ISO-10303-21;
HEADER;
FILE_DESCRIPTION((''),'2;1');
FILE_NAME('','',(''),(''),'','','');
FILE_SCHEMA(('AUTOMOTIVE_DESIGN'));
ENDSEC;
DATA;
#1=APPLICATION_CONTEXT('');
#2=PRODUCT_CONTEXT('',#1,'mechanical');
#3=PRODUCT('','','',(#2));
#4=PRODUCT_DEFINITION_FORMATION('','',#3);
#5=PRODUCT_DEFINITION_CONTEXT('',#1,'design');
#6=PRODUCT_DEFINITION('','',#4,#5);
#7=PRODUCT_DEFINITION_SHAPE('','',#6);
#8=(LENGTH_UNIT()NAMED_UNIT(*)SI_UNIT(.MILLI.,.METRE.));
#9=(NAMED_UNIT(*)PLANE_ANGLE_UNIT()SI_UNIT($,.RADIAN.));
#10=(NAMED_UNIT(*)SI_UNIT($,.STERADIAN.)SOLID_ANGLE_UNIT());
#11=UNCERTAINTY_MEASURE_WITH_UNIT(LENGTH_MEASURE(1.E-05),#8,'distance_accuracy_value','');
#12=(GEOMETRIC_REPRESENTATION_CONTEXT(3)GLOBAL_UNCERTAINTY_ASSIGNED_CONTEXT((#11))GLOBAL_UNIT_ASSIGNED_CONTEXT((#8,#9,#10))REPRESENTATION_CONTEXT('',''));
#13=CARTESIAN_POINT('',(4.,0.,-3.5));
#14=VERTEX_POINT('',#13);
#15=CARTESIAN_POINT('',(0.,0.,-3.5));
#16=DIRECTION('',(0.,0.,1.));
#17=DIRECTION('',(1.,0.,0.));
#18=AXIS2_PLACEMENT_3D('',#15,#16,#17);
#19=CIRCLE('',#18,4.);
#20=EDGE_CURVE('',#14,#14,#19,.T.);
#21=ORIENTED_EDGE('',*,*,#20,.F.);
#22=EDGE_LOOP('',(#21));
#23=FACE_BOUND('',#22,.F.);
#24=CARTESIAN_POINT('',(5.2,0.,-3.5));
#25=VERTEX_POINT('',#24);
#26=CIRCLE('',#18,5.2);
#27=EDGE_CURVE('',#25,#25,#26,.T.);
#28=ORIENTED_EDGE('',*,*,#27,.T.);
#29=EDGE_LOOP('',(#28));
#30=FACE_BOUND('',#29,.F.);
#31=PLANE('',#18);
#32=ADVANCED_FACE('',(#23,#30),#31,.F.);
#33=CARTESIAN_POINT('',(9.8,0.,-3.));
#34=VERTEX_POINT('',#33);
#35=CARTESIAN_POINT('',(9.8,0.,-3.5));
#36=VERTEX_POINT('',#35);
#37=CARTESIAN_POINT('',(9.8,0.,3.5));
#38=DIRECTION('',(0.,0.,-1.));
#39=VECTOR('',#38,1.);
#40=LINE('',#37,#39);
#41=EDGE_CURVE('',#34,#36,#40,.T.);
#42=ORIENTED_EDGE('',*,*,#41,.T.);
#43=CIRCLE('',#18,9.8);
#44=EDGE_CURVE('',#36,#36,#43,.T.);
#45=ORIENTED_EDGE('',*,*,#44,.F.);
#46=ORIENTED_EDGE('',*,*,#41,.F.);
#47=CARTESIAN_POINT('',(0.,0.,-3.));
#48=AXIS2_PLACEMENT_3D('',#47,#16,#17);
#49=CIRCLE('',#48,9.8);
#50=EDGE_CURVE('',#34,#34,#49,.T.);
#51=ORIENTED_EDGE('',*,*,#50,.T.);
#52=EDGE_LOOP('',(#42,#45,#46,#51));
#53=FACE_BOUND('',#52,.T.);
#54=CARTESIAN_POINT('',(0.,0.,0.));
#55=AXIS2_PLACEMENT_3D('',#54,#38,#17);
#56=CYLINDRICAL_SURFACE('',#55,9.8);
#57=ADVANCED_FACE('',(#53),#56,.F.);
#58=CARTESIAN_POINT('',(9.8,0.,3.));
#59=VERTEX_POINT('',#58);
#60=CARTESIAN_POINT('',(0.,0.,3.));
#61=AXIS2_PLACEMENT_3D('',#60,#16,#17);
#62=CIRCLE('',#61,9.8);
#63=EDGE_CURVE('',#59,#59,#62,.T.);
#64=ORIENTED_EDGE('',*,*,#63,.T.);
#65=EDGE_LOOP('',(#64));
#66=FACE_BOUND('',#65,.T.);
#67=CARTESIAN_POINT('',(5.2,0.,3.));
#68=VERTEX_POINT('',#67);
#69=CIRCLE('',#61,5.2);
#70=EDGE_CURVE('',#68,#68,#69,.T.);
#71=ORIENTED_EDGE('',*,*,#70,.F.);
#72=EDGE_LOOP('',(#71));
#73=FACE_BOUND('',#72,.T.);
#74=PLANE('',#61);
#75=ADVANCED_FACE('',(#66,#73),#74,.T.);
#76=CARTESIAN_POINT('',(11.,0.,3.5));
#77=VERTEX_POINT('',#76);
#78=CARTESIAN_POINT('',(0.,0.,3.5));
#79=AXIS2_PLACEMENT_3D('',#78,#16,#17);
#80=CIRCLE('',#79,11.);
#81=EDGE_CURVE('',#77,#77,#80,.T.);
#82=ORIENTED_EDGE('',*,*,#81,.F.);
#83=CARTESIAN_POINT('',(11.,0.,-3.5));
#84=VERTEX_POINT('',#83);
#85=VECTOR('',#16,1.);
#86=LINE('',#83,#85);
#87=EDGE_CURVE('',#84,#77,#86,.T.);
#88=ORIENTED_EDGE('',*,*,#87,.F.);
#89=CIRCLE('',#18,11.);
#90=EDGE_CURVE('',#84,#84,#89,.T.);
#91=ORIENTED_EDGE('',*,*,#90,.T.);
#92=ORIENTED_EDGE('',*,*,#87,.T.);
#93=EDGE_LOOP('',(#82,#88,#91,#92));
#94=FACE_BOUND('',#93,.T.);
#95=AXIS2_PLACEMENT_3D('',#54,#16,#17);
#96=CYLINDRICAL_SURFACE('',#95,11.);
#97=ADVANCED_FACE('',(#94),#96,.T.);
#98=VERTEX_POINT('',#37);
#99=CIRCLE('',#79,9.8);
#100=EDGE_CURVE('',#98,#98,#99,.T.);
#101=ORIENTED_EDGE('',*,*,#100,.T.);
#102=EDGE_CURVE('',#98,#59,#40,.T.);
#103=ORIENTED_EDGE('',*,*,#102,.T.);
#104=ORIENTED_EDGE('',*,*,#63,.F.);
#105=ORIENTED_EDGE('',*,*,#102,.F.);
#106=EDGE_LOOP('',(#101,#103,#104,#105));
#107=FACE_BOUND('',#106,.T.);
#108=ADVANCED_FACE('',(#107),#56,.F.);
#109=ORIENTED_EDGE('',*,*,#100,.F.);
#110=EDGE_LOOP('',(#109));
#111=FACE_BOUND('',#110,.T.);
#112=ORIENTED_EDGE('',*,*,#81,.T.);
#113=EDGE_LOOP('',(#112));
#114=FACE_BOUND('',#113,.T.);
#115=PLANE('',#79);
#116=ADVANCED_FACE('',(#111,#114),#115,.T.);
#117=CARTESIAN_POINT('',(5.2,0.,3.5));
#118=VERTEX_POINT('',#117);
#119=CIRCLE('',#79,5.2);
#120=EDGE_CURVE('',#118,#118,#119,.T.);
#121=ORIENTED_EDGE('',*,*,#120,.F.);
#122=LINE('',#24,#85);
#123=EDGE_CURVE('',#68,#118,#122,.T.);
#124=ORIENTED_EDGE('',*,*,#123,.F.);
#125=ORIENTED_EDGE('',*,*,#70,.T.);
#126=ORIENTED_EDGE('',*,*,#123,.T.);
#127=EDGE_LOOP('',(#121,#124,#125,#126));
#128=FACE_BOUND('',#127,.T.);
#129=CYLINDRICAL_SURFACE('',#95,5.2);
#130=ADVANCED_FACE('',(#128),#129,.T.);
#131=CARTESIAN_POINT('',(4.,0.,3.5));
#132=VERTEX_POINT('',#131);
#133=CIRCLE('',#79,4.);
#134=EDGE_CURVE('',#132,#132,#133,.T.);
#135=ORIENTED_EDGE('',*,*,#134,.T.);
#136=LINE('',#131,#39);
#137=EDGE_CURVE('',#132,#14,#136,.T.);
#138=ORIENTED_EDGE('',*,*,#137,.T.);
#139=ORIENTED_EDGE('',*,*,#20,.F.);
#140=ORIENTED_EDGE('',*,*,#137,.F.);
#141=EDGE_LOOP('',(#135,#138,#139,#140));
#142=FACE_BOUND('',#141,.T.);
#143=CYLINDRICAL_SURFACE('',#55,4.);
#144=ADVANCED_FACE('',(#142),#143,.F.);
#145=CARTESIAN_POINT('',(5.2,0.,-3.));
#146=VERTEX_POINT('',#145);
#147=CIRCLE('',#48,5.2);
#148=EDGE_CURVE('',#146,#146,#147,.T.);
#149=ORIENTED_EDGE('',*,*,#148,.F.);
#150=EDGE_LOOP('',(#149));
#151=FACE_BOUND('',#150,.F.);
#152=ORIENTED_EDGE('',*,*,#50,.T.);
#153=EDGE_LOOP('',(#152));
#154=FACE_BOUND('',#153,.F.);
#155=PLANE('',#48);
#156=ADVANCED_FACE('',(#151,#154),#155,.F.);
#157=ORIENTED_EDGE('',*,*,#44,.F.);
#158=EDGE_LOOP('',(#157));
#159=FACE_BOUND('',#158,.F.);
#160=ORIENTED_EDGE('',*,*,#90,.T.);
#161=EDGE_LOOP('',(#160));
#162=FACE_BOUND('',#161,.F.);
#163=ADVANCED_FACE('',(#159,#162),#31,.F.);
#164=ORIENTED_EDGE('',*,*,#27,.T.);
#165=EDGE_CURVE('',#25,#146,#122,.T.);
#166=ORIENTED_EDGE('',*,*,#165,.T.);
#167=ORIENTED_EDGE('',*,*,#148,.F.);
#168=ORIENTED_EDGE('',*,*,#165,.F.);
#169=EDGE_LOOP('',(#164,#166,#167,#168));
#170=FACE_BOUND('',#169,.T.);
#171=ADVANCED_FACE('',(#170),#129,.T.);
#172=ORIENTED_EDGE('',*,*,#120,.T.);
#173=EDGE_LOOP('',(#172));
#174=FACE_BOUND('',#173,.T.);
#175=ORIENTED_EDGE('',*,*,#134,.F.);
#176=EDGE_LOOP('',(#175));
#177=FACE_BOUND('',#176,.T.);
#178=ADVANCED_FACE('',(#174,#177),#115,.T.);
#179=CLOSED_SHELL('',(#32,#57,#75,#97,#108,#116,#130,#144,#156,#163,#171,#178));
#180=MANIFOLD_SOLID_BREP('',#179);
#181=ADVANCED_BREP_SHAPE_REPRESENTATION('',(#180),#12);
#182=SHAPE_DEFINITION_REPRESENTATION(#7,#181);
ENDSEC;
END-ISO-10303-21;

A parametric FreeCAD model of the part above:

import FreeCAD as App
import Part
import Sketcher
from FreeCAD import Vector

doc = App.newDocument("Part")
params = doc.addObject("Spreadsheet::Sheet", "Params")
for row, (alias, value) in enumerate([
    ("sketch1_diameter", "22 mm"),
    ("sketch1_diameter2", "19.6 mm"),
    ("pad1_length", "7 mm"),
    ("sketch2_diameter", "8 mm"),
    ("sketch2_diameter2", "10.4 mm"),
    ("pad2_length", "7 mm"),
    ("sketch3_diameter", "19.6 mm"),
    ("sketch3_diameter2", "10.4 mm"),
    ("pad3_length", "6 mm"),
], start=1):
    params.set(f"A{row}", alias)
    params.set(f"B{row}", "=" + value)
    params.setAlias(f"B{row}", alias)

body = doc.addObject("PartDesign::Body", "Body")

sketch1 = doc.addObject("Sketcher::SketchObject", "Sketch")
body.addObject(sketch1)
sketch1.AttachmentSupport = (doc.XY_Plane, [""])
sketch1.MapMode = "FlatFace"
sketch1.addGeometry([
    Part.Circle(Vector(0, 0, 0), Vector(0, 0, 1), 11),
    Part.Circle(Vector(0, 0, 0), Vector(0, 0, 1), 10),
], False)
sketch1.addConstraint([
    Sketcher.Constraint("Coincident", 0, 3, -1, 1),
    Sketcher.Constraint("Coincident", 1, 3, -1, 1),
    Sketcher.Constraint("Diameter", 0, 22.0),
    Sketcher.Constraint("Diameter", 1, 19.6),
])
sketch1.setExpression("Constraints[2]", "Params.sketch1_diameter")
sketch1.setExpression("Constraints[3]", "Params.sketch1_diameter2")
pad1 = doc.addObject("PartDesign::Pad", "Pad")
body.addObject(pad1)
pad1.Profile = sketch1
pad1.setExpression("Length", "Params.pad1_length")
pad1.Midplane = True
body2 = doc.addObject("PartDesign::Body", "Body001")

sketch2 = doc.addObject("Sketcher::SketchObject", "Sketch001")
body2.addObject(sketch2)
sketch2.AttachmentSupport = (doc.getObject("XY_Plane001"), [""])
sketch2.MapMode = "FlatFace"
sketch2.addGeometry([
    Part.Circle(Vector(0, 0, 0), Vector(0, 0, 1), 5.2),
    Part.Circle(Vector(0, 0, 0), Vector(0, 0, 1), 4),
], False)
sketch2.addConstraint([
    Sketcher.Constraint("Coincident", 0, 3, -1, 1),
    Sketcher.Constraint("Coincident", 1, 3, -1, 1),
    Sketcher.Constraint("Diameter", 1, 8.0),
    Sketcher.Constraint("Diameter", 0, 10.4),
])
sketch2.setExpression("Constraints[2]", "Params.sketch2_diameter")
sketch2.setExpression("Constraints[3]", "Params.sketch2_diameter2")
pad2 = doc.addObject("PartDesign::Pad", "Pad001")
body2.addObject(pad2)
pad2.Profile = sketch2
pad2.setExpression("Length", "Params.pad2_length")
pad2.Midplane = True
body.AllowCompound = True
doc.recompute()

boolean = doc.addObject("PartDesign::Boolean", "Boolean")
body.addObject(boolean)
boolean.Type = "Fuse"
boolean.addObjects([body2])

sketch3 = doc.addObject("Sketcher::SketchObject", "Sketch002")
body.addObject(sketch3)
sketch3.AttachmentSupport = (doc.XY_Plane, [""])
sketch3.MapMode = "FlatFace"
sketch3.addGeometry([
    Part.Circle(Vector(0, 0, 0), Vector(0, 0, 1), 10),
    Part.Circle(Vector(0, 0, 0), Vector(0, 0, 1), 5),
], False)
sketch3.addConstraint([
    Sketcher.Constraint("Coincident", 0, 3, -1, 1),
    Sketcher.Constraint("Coincident", 1, 3, -1, 1),
    Sketcher.Constraint("Diameter", 0, 19.6),
    Sketcher.Constraint("Diameter", 1, 10.4),
])
sketch3.setExpression("Constraints[2]", "Params.sketch3_diameter")
sketch3.setExpression("Constraints[3]", "Params.sketch3_diameter2")
pad3 = doc.addObject("PartDesign::Pad", "Pad002")
body.addObject(pad3)
pad3.Profile = sketch3
pad3.setExpression("Length", "Params.pad3_length")
pad3.Midplane = True

doc.recompute()
